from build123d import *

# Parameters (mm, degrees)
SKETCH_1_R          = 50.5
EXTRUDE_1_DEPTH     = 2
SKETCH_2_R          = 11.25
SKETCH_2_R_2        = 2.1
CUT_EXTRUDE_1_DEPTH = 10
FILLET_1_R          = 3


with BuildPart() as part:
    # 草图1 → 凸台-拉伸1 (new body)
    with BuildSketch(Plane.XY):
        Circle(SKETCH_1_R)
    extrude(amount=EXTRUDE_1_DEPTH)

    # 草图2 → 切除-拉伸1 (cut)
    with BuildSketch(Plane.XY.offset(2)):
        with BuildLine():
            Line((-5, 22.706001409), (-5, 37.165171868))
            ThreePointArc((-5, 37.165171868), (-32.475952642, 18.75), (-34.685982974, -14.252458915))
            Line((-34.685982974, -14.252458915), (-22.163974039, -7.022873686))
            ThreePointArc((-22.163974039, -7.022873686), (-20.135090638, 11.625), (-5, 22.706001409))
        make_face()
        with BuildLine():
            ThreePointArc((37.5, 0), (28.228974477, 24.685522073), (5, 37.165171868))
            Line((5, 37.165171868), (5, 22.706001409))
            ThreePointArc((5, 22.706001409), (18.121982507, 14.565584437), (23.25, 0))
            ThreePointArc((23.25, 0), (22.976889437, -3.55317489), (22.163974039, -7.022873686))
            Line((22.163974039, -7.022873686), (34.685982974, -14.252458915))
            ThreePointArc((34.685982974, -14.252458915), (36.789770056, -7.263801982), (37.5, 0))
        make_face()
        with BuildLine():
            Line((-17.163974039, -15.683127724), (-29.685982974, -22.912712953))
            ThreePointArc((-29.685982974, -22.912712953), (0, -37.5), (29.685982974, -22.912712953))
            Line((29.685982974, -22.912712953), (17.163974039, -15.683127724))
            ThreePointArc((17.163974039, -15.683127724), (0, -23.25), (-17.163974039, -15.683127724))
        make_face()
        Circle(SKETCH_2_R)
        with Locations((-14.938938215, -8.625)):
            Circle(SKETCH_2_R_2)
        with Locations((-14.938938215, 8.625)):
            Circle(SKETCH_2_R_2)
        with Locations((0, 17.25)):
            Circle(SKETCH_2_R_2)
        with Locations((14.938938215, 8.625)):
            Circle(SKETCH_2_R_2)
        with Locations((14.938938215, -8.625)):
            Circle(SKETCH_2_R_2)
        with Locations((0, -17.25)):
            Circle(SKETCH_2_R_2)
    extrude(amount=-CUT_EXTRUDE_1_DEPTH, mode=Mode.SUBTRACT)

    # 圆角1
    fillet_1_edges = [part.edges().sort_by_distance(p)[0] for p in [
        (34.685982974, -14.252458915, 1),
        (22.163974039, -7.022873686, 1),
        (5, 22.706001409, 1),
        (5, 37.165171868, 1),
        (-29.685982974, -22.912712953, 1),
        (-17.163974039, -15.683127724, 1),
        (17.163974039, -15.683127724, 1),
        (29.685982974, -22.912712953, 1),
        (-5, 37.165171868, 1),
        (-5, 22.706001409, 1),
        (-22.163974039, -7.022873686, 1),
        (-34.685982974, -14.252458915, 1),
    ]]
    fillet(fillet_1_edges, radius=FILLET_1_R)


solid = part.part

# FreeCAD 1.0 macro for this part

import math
import FreeCAD as App
import Part
import Sketcher
Q = App.Units.Quantity


def edges_at(feature, points):
    """Names of the edges that pass closest to the given points."""
    edges = feature.Shape.Edges
    near = lambda p: min(range(len(edges)), key=lambda i: edges[i].distToShape(Part.Vertex(*p))[0])
    return sorted({f"Edge{near(p) + 1}" for p in points})

doc = App.newDocument("Part")
body = doc.addObject("PartDesign::Body", "Body")

# Sketch on XY plane
sketch1 = body.newObject("Sketcher::SketchObject", "Sketch")
sketch1.AttachmentSupport = (doc.getObject("XY_Plane"), [""])
sketch1.MapMode = "FlatFace"
sketch1.addGeometry(Part.Circle(App.Vector(0, 0, 0), App.Vector(0, 0, 1), 50), False)
sketch1.addConstraint([
    Sketcher.Constraint("Coincident", 0, 3, -1, 1),
    Sketcher.Constraint("Diameter", 0, 101.0),
])
pad1 = body.newObject("PartDesign::Pad", "Pad")
pad1.Profile = sketch1
pad1.Length = 2

# Sketch on XY plane
sketch2 = body.newObject("Sketcher::SketchObject", "Sketch001")
sketch2.AttachmentSupport = (doc.getObject("XY_Plane"), [""])
sketch2.MapMode = "FlatFace"
sketch2.AttachmentOffset = App.Placement(App.Vector(0, 0, 2), App.Rotation())
sketch2.addGeometry([
    Part.LineSegment(App.Vector(-5, 22.7, 0), App.Vector(-5, 37.2, 0)),  # 0
    Part.ArcOfCircle(Part.Circle(App.Vector(0, 0, 0), App.Vector(0, 0, 1), 37.5), math.radians(98), math.radians(202)),  # 1
    Part.LineSegment(App.Vector(-34.7, -14.3, 0), App.Vector(-22.2, -7, 0)),  # 2
    Part.ArcOfCircle(Part.Circle(App.Vector(0, 0, 0), App.Vector(0, 0, 1), 23.2), math.radians(102), math.radians(198)),  # 3
    Part.ArcOfCircle(Part.Circle(App.Vector(0, 0, 0), App.Vector(0, 0, 1), 37.5), math.radians(0), math.radians(82)),  # 4
    Part.LineSegment(App.Vector(5, 37.2, 0), App.Vector(5, 22.7, 0)),  # 5
    Part.ArcOfCircle(Part.Circle(App.Vector(0, 0, 0), App.Vector(0, 0, 1), 23.3), math.radians(0), math.radians(78)),  # 6
    Part.ArcOfCircle(Part.Circle(App.Vector(0, 0, 0), App.Vector(0, 0, 1), 23.3), math.radians(-17.58), math.radians(0)),  # 7
    Part.LineSegment(App.Vector(22.2, -7, 0), App.Vector(34.7, -14.3, 0)),  # 8
    Part.ArcOfCircle(Part.Circle(App.Vector(0, 0, 0), App.Vector(0, 0, 1), 37.5), math.radians(-22), math.radians(0)),  # 9
    Part.LineSegment(App.Vector(-17.2, -15.7, 0), App.Vector(-29.7, -22.9, 0)),  # 10
    Part.ArcOfCircle(Part.Circle(App.Vector(0, 0, 0), App.Vector(0, 0, 1), 37.5), math.radians(-142), math.radians(-38)),  # 11
    Part.LineSegment(App.Vector(29.7, -22.9, 0), App.Vector(17.2, -15.7, 0)),  # 12
    Part.ArcOfCircle(Part.Circle(App.Vector(0, 0, 0), App.Vector(0, 0, 1), 23.3), math.radians(-138), math.radians(-42)),  # 13
    Part.Circle(App.Vector(0, 0, 0), App.Vector(0, 0, 1), 11.2),  # 14
    Part.Circle(App.Vector(-14.9, -8.6, 0), App.Vector(0, 0, 1), 2.1),  # 15
    Part.Circle(App.Vector(-14.9, 8.6, 0), App.Vector(0, 0, 1), 2.1),  # 16
    Part.Circle(App.Vector(0, 17.2, 0), App.Vector(0, 0, 1), 2.1),  # 17
    Part.Circle(App.Vector(14.9, 8.6, 0), App.Vector(0, 0, 1), 2.1),  # 18
    Part.Circle(App.Vector(14.9, -8.6, 0), App.Vector(0, 0, 1), 2.1),  # 19
    Part.Circle(App.Vector(0, -17.2, 0), App.Vector(0, 0, 1), 2.1),  # 20
], False)
sketch2.addConstraint([
    Sketcher.Constraint("Coincident", 0, 2, 1, 1),
    Sketcher.Constraint("Coincident", 1, 2, 2, 1),
    Sketcher.Constraint("Coincident", 2, 2, 3, 2),
    Sketcher.Constraint("Coincident", 3, 1, 0, 1),
    Sketcher.Constraint("Coincident", 4, 2, 5, 1),
    Sketcher.Constraint("Coincident", 5, 2, 6, 2),
    Sketcher.Constraint("Tangent", 6, 1, 7, 2),
    Sketcher.Constraint("Coincident", 7, 1, 8, 1),
    Sketcher.Constraint("Coincident", 8, 2, 9, 1),
    Sketcher.Constraint("Tangent", 9, 2, 4, 1),
    Sketcher.Constraint("Coincident", 10, 2, 11, 1),
    Sketcher.Constraint("Coincident", 11, 2, 12, 1),
    Sketcher.Constraint("Coincident", 12, 2, 13, 2),
    Sketcher.Constraint("Coincident", 13, 1, 10, 1),
    Sketcher.Constraint("Vertical", 0),
    Sketcher.Constraint("Vertical", 5),
    Sketcher.Constraint("Coincident", 1, 3, -1, 1),
    Sketcher.Constraint("Coincident", 3, 3, -1, 1),
    Sketcher.Constraint("Coincident", 4, 3, -1, 1),
    Sketcher.Constraint("Coincident", 6, 3, -1, 1),
    Sketcher.Constraint("Coincident", 11, 3, -1, 1),
    Sketcher.Constraint("Coincident", 13, 3, -1, 1),
    Sketcher.Constraint("Coincident", 14, 3, -1, 1),
    Sketcher.Constraint("Equal", 1, 4),
    Sketcher.Constraint("Equal", 3, 6),
    Sketcher.Constraint("Equal", 6, 7),
    Sketcher.Constraint("Equal", 4, 9),
    Sketcher.Constraint("Equal", 9, 11),
    Sketcher.Constraint("Equal", 7, 13),
    Sketcher.Constraint("Equal", 15, 16),
    Sketcher.Constraint("Equal", 16, 17),
    Sketcher.Constraint("Equal", 17, 18),
    Sketcher.Constraint("Equal", 18, 19),
    Sketcher.Constraint("Equal", 19, 20),
    Sketcher.Constraint("Symmetric", 15, 3, 18, 3, -1, 1),
    Sketcher.Constraint("Symmetric", 16, 3, 19, 3, -1, 1),
    Sketcher.Constraint("Symmetric", 17, 3, 20, 3, -1, 1),
    Sketcher.Constraint("Symmetric", 16, 3, 18, 3, -2),
    Sketcher.Constraint("PointOnObject", 17, 3, -2),
    Sketcher.Constraint("PointOnObject", 6, 1, -1),
    Sketcher.Constraint("PointOnObject", 9, 2, -1),
    Sketcher.Constraint("Parallel", 2, 10),
    Sketcher.Constraint("Parallel", 8, 12),
    Sketcher.Constraint("Horizontal", 0, 2, 4, 2),
    Sketcher.Constraint("Horizontal", 2, 2, 7, 1),
    Sketcher.Constraint("Horizontal", 1, 2, 8, 2),
    Sketcher.Constraint("Horizontal", 10, 2, 11, 2),
    Sketcher.Constraint("Equal", 8, 10),
    Sketcher.Constraint("Diameter", 14, 22.5),
    Sketcher.Constraint("Diameter", 15, 4.2),
    Sketcher.Constraint("Radius", 1, 37.5),
    Sketcher.Constraint("Angle", 2, Q("30 deg")),
    Sketcher.Constraint("Radius", 3, 23.25),
    Sketcher.Constraint("DistanceX", 0, 2, -1, 1, 5.0),
    Sketcher.Constraint("DistanceX", 1, 2, 10, 2, 5.0),
    Sketcher.Constraint("DistanceY", -1, 1, 17, 3, 17.25),
    Sketcher.Constraint("DistanceY", 15, 3, -1, 1, 8.625),
    Sketcher.Constraint("DistanceX", 15, 3, -1, 1, 14.938938),
])
pocket1 = body.newObject("PartDesign::Pocket", "Pocket")
pocket1.Profile = sketch2
pocket1.Length = 10
doc.recompute()

fillet = body.newObject("PartDesign::Fillet", "Fillet")
fillet.Base = (pocket1, edges_at(pocket1, [
    (34.686, -14.252, 1),
    (22.164, -7.023, 1),
    (5, 22.706, 1),
    (5, 37.165, 1),
    (-29.686, -22.913, 1),
    (-17.164, -15.683, 1),
    (17.164, -15.683, 1),
    (29.686, -22.913, 1),
    (-5, 37.165, 1),
    (-5, 22.706, 1),
    (-22.164, -7.023, 1),
    (-34.686, -14.252, 1),
]))
fillet.Radius = 3

doc.recompute()
